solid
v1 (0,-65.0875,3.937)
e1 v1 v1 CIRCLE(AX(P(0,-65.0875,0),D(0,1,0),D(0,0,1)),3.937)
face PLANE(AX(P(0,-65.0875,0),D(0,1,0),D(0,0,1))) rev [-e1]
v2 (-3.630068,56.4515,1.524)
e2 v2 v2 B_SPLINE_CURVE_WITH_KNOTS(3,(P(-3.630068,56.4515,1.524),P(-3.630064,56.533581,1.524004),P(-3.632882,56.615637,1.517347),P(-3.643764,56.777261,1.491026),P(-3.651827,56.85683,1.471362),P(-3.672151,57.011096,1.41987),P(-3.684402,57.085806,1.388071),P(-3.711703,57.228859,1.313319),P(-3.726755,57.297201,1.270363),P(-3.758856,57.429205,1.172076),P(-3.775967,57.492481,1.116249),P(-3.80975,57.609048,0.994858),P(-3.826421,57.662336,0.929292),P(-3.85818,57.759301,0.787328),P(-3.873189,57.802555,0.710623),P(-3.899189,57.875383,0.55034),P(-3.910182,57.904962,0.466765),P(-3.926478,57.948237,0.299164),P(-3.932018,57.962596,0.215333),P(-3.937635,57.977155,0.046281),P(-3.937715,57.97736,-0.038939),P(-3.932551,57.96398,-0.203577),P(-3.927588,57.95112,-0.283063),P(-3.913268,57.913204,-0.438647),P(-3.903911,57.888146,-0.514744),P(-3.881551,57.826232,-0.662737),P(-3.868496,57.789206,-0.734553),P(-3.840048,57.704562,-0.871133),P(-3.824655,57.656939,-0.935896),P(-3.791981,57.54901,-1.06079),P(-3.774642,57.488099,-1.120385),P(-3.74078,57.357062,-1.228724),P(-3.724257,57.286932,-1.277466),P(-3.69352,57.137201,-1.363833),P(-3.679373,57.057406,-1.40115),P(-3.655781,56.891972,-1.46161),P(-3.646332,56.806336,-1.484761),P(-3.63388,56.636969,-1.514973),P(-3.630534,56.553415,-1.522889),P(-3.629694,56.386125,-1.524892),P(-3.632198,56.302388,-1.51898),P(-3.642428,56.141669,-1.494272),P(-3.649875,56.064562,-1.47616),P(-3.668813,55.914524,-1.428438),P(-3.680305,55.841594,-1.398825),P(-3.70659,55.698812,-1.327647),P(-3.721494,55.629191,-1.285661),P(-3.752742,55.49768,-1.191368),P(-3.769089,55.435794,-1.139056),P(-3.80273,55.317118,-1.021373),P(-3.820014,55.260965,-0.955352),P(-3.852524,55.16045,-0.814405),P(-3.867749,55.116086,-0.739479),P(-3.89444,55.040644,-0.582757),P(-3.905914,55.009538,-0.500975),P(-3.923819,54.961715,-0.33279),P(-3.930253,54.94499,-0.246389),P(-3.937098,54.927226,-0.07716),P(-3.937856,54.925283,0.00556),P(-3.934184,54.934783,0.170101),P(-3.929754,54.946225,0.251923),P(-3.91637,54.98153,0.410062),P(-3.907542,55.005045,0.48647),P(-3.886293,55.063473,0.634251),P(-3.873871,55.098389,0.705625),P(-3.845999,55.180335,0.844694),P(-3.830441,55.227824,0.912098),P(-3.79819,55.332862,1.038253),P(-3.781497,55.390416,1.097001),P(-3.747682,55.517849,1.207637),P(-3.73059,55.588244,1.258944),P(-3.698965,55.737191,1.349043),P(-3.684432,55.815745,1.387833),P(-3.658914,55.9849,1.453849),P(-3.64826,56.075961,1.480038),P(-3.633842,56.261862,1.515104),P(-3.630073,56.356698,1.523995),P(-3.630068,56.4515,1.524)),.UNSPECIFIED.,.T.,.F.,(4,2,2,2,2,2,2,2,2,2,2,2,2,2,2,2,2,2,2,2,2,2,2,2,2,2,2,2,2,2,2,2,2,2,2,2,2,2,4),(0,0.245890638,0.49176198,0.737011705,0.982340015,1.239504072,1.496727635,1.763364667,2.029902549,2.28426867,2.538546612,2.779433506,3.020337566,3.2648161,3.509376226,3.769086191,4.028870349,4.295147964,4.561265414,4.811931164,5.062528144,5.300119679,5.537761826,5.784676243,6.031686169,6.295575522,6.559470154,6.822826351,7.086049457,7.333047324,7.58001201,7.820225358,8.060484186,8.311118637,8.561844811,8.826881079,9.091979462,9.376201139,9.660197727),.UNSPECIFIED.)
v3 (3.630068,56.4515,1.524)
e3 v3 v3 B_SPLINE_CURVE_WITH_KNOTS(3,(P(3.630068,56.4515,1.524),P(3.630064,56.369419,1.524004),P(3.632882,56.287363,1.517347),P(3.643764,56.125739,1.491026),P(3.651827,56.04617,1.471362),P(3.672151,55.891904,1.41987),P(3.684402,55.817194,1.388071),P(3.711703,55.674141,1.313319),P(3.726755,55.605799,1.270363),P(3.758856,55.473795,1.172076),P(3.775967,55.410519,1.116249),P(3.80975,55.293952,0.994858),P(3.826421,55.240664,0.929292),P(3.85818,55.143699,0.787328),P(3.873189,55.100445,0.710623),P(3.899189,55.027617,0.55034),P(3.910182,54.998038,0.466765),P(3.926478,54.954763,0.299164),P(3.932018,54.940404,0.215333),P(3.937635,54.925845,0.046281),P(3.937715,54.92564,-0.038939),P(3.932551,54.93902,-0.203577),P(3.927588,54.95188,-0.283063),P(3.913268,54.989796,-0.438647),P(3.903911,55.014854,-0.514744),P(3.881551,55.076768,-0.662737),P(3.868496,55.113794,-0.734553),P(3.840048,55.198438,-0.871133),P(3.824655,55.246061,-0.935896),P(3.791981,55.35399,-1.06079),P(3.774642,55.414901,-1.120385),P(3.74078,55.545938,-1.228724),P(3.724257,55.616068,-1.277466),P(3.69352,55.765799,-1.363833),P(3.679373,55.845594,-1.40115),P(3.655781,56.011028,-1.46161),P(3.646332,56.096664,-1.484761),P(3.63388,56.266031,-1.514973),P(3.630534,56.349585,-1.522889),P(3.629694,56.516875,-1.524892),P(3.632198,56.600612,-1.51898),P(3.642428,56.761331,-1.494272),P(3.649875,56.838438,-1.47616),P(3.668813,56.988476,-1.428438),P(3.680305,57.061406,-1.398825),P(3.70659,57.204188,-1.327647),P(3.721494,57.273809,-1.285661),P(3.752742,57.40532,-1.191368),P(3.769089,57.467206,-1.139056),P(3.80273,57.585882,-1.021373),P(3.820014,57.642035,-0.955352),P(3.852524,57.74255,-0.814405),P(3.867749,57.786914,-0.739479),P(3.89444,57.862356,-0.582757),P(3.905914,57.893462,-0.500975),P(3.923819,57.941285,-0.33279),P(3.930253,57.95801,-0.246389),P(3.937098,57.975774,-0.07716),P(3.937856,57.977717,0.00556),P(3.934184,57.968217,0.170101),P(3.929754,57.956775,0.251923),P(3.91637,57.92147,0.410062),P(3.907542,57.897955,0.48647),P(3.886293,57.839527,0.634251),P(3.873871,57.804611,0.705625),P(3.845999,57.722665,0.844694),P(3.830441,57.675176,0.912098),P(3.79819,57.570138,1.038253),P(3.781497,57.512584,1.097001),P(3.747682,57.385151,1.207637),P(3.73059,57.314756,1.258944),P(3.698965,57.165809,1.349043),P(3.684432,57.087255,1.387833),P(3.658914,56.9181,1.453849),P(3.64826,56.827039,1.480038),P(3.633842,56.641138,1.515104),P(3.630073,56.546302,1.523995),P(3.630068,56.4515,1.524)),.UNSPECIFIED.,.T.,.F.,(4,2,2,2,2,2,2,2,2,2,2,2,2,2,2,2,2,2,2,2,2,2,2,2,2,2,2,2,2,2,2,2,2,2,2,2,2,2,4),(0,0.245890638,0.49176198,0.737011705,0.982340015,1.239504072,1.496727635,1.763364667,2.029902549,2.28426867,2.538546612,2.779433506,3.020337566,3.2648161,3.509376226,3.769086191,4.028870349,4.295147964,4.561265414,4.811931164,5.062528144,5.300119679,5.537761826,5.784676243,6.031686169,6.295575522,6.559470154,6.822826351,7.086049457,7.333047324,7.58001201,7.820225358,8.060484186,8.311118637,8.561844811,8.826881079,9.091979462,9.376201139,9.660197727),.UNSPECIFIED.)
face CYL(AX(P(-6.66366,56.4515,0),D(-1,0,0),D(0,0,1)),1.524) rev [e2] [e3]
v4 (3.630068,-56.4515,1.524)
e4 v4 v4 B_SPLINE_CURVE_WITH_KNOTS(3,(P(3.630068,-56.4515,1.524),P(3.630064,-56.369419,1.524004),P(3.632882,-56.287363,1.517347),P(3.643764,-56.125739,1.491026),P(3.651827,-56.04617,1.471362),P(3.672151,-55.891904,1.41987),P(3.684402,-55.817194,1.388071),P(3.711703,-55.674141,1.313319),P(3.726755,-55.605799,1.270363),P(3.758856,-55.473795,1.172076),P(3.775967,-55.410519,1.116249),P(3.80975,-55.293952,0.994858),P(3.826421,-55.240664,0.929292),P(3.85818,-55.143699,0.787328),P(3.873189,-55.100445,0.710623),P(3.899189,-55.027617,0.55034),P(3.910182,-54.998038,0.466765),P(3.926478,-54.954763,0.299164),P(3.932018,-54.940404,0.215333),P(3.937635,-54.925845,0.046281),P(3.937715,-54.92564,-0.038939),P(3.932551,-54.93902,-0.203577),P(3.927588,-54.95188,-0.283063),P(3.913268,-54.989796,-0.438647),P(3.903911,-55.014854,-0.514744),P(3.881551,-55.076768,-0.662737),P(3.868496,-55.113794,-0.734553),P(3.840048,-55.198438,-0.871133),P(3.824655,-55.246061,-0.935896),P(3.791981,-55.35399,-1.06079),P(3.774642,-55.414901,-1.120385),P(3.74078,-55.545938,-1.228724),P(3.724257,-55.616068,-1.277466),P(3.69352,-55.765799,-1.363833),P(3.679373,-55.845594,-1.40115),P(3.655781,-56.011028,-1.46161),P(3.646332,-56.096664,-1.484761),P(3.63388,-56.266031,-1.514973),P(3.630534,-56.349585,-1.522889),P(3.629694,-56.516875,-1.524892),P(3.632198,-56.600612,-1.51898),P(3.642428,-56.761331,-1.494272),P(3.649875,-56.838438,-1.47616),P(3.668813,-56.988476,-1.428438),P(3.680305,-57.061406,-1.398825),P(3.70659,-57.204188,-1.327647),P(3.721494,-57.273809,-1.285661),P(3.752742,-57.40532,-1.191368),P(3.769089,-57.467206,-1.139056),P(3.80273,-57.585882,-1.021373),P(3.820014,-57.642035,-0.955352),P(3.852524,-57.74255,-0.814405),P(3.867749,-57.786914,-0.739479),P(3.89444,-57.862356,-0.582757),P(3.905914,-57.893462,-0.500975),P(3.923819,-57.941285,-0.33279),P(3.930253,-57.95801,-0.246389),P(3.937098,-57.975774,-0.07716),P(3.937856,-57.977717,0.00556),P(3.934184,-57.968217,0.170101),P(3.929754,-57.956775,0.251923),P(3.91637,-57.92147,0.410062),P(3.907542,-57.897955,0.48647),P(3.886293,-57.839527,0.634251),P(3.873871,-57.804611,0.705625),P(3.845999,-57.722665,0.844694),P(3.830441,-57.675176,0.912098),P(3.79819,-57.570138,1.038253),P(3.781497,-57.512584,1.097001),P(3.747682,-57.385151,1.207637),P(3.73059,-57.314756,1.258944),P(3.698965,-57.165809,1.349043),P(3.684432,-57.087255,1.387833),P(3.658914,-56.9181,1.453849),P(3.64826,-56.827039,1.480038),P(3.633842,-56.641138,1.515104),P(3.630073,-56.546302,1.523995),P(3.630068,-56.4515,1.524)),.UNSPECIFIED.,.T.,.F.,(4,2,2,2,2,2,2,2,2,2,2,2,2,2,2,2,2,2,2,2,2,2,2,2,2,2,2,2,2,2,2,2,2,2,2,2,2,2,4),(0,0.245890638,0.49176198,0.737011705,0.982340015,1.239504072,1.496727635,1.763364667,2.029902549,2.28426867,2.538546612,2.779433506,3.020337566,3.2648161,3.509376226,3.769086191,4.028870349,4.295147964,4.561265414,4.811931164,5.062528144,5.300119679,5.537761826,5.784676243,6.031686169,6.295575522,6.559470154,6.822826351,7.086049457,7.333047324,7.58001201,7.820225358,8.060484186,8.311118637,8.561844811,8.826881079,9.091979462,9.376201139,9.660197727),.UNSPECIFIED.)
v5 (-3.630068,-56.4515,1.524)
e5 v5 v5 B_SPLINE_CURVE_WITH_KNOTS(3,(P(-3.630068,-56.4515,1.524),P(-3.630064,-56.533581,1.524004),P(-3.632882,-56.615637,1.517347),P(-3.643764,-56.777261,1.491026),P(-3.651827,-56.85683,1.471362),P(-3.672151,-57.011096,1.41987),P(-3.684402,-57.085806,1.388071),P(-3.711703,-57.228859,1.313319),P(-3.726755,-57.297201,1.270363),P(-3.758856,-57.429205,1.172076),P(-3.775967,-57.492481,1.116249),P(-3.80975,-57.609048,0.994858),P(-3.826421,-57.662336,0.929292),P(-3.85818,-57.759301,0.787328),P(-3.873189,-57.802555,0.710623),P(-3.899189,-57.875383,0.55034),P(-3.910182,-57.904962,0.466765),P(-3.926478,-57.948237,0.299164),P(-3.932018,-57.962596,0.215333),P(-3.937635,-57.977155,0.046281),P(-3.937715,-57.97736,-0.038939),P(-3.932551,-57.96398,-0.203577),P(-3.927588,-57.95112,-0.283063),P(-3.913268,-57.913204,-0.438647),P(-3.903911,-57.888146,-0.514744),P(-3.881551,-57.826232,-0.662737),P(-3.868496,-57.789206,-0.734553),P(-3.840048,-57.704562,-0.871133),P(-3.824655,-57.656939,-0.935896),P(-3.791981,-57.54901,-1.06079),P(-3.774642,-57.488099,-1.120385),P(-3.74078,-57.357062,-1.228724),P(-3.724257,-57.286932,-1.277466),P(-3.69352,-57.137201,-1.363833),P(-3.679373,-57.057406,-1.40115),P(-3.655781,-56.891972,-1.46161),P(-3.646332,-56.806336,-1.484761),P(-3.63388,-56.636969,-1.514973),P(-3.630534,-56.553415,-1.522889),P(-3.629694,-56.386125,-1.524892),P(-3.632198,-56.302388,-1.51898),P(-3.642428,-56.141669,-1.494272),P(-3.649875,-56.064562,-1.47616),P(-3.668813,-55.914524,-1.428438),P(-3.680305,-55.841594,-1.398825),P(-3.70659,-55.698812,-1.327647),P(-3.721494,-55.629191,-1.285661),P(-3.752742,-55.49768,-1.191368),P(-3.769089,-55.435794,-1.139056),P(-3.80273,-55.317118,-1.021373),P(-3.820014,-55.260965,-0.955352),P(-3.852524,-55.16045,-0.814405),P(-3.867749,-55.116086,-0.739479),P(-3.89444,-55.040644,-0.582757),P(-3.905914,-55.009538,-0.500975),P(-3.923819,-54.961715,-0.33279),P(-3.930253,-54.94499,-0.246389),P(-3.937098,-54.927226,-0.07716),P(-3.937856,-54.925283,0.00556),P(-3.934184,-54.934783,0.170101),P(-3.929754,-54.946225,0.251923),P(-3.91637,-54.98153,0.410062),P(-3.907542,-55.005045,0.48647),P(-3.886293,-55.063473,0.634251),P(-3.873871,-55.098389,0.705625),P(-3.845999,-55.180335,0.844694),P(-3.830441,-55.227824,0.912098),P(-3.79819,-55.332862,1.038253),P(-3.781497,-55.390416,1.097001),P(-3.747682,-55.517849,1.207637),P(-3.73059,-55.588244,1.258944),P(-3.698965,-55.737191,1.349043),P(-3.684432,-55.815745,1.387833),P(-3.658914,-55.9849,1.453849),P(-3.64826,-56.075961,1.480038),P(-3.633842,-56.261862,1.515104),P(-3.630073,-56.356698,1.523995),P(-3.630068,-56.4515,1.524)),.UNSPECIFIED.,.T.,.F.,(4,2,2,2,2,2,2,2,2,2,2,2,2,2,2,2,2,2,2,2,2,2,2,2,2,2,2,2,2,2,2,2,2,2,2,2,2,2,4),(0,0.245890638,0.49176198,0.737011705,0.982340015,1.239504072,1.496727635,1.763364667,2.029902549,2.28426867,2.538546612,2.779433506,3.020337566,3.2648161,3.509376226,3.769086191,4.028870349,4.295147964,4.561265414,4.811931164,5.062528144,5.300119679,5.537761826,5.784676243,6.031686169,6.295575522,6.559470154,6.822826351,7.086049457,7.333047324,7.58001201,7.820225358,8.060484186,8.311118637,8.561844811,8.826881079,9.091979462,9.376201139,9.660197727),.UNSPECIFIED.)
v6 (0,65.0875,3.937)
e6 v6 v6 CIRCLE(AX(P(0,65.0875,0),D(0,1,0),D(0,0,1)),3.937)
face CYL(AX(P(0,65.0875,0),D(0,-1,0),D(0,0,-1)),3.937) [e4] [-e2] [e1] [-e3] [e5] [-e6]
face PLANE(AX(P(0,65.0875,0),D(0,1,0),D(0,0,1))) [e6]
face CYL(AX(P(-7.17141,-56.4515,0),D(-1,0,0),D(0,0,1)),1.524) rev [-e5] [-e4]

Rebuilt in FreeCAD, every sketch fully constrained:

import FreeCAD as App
import Part
import Sketcher
Q = App.Units.Quantity


def add_polygon(sketch, points):
    """Adds a closed chain of lines whose ends are joined by coincident constraints."""
    first, n = sketch.GeometryCount, len(points)
    for a, b in zip(points, points[1:] + points[:1]):
        sketch.addGeometry(Part.LineSegment(App.Vector(*a, 0), App.Vector(*b, 0)), False)
    for i in range(n):
        sketch.addConstraint(Sketcher.Constraint("Coincident", first + i, 2, first + (i + 1) % n, 1))

doc = App.newDocument("Part")
body = doc.addObject("PartDesign::Body", "Body")

sketch1 = body.newObject("Sketcher::SketchObject", "Sketch")
sketch1.AttachmentSupport = (doc.getObject("XZ_Plane"), [""])
sketch1.MapMode = "FlatFace"
sketch1.addGeometry(Part.Circle(App.Vector(0, 0, 0), App.Vector(0, 0, 1), 3.9), False)
sketch1.addConstraint([
    Sketcher.Constraint("Coincident", 0, 3, -1, 1),
    Sketcher.Constraint("Diameter", 0, Q("0.31 in")),
])
pad1 = body.newObject("PartDesign::Pad", "Pad")
pad1.Profile = sketch1
pad1.Length = Q("5.125 in")
pad1.Midplane = True

sketch2 = body.newObject("Sketcher::SketchObject", "Sketch001")
sketch2.AttachmentSupport = (doc.getObject("XY_Plane"), [""])
sketch2.MapMode = "FlatFace"
add_polygon(sketch2, [(-6.7, 58), (-6.7, 56.5), (8.1, 56.5), (8.1, 58)])
sketch2.addGeometry(Part.LineSegment(App.Vector(-6.7, 56.5, 0), App.Vector(8.1, 56.5, 0)), True)
sketch2.addConstraint([
    Sketcher.Constraint("Vertical", 0),
    Sketcher.Constraint("Horizontal", 1),
    Sketcher.Constraint("Vertical", 2),
    Sketcher.Constraint("Horizontal", 3),
    Sketcher.Constraint("Horizontal", 4),
    Sketcher.Constraint("Coincident", 4, 1, 0, 2),
    Sketcher.Constraint("Vertical", 2, 2, 4, 2),
    Sketcher.Constraint("DistanceY", 0, 2, 0, 1, Q("0.06 in")),
    Sketcher.Constraint("DistanceY", -1, 1, 0, 2, Q("2.2225 in")),
    Sketcher.Constraint("DistanceX", 1, 1, 1, 2, 14.723978),
    Sketcher.Constraint("DistanceX", 0, 2, -1, 1, 6.66366),
])
groove = body.newObject("PartDesign::Groove", "Groove")
groove.Profile = sketch2
groove.ReferenceAxis = (sketch2, ["Axis0"])
groove.Angle = 360

sketch3 = body.newObject("Sketcher::SketchObject", "Sketch002")
sketch3.AttachmentSupport = (doc.getObject("XY_Plane"), [""])
sketch3.MapMode = "FlatFace"
add_polygon(sketch3, [(-7.2, -56.5), (-7.2, -58), (7.3, -58), (7.3, -56.5)])
sketch3.addGeometry(Part.LineSegment(App.Vector(-7.2, -56.5, 0), App.Vector(7.3, -56.5, 0)), True)
sketch3.addConstraint([
    Sketcher.Constraint("Vertical", 0),
    Sketcher.Constraint("Horizontal", 1),
    Sketcher.Constraint("Vertical", 2),
    Sketcher.Constraint("Horizontal", 3),
    Sketcher.Constraint("Horizontal", 4),
    Sketcher.Constraint("Coincident", 4, 1, 3, 2),
    Sketcher.Constraint("Vertical", 1, 2, 4, 2),
    Sketcher.Constraint("DistanceY", 0, 2, 0, 1, Q("0.06 in")),
    Sketcher.Constraint("DistanceX", 1, 1, 1, 2, 14.4933),
    Sketcher.Constraint("DistanceY", 0, 2, -1, 1, Q("2.2825 in")),
    Sketcher.Constraint("DistanceX", 0, 2, -1, 1, 7.17141),
])
groove2 = body.newObject("PartDesign::Groove", "Groove001")
groove2.Profile = sketch3
groove2.ReferenceAxis = (sketch3, ["Axis0"])
groove2.Angle = 360

doc.recompute()
